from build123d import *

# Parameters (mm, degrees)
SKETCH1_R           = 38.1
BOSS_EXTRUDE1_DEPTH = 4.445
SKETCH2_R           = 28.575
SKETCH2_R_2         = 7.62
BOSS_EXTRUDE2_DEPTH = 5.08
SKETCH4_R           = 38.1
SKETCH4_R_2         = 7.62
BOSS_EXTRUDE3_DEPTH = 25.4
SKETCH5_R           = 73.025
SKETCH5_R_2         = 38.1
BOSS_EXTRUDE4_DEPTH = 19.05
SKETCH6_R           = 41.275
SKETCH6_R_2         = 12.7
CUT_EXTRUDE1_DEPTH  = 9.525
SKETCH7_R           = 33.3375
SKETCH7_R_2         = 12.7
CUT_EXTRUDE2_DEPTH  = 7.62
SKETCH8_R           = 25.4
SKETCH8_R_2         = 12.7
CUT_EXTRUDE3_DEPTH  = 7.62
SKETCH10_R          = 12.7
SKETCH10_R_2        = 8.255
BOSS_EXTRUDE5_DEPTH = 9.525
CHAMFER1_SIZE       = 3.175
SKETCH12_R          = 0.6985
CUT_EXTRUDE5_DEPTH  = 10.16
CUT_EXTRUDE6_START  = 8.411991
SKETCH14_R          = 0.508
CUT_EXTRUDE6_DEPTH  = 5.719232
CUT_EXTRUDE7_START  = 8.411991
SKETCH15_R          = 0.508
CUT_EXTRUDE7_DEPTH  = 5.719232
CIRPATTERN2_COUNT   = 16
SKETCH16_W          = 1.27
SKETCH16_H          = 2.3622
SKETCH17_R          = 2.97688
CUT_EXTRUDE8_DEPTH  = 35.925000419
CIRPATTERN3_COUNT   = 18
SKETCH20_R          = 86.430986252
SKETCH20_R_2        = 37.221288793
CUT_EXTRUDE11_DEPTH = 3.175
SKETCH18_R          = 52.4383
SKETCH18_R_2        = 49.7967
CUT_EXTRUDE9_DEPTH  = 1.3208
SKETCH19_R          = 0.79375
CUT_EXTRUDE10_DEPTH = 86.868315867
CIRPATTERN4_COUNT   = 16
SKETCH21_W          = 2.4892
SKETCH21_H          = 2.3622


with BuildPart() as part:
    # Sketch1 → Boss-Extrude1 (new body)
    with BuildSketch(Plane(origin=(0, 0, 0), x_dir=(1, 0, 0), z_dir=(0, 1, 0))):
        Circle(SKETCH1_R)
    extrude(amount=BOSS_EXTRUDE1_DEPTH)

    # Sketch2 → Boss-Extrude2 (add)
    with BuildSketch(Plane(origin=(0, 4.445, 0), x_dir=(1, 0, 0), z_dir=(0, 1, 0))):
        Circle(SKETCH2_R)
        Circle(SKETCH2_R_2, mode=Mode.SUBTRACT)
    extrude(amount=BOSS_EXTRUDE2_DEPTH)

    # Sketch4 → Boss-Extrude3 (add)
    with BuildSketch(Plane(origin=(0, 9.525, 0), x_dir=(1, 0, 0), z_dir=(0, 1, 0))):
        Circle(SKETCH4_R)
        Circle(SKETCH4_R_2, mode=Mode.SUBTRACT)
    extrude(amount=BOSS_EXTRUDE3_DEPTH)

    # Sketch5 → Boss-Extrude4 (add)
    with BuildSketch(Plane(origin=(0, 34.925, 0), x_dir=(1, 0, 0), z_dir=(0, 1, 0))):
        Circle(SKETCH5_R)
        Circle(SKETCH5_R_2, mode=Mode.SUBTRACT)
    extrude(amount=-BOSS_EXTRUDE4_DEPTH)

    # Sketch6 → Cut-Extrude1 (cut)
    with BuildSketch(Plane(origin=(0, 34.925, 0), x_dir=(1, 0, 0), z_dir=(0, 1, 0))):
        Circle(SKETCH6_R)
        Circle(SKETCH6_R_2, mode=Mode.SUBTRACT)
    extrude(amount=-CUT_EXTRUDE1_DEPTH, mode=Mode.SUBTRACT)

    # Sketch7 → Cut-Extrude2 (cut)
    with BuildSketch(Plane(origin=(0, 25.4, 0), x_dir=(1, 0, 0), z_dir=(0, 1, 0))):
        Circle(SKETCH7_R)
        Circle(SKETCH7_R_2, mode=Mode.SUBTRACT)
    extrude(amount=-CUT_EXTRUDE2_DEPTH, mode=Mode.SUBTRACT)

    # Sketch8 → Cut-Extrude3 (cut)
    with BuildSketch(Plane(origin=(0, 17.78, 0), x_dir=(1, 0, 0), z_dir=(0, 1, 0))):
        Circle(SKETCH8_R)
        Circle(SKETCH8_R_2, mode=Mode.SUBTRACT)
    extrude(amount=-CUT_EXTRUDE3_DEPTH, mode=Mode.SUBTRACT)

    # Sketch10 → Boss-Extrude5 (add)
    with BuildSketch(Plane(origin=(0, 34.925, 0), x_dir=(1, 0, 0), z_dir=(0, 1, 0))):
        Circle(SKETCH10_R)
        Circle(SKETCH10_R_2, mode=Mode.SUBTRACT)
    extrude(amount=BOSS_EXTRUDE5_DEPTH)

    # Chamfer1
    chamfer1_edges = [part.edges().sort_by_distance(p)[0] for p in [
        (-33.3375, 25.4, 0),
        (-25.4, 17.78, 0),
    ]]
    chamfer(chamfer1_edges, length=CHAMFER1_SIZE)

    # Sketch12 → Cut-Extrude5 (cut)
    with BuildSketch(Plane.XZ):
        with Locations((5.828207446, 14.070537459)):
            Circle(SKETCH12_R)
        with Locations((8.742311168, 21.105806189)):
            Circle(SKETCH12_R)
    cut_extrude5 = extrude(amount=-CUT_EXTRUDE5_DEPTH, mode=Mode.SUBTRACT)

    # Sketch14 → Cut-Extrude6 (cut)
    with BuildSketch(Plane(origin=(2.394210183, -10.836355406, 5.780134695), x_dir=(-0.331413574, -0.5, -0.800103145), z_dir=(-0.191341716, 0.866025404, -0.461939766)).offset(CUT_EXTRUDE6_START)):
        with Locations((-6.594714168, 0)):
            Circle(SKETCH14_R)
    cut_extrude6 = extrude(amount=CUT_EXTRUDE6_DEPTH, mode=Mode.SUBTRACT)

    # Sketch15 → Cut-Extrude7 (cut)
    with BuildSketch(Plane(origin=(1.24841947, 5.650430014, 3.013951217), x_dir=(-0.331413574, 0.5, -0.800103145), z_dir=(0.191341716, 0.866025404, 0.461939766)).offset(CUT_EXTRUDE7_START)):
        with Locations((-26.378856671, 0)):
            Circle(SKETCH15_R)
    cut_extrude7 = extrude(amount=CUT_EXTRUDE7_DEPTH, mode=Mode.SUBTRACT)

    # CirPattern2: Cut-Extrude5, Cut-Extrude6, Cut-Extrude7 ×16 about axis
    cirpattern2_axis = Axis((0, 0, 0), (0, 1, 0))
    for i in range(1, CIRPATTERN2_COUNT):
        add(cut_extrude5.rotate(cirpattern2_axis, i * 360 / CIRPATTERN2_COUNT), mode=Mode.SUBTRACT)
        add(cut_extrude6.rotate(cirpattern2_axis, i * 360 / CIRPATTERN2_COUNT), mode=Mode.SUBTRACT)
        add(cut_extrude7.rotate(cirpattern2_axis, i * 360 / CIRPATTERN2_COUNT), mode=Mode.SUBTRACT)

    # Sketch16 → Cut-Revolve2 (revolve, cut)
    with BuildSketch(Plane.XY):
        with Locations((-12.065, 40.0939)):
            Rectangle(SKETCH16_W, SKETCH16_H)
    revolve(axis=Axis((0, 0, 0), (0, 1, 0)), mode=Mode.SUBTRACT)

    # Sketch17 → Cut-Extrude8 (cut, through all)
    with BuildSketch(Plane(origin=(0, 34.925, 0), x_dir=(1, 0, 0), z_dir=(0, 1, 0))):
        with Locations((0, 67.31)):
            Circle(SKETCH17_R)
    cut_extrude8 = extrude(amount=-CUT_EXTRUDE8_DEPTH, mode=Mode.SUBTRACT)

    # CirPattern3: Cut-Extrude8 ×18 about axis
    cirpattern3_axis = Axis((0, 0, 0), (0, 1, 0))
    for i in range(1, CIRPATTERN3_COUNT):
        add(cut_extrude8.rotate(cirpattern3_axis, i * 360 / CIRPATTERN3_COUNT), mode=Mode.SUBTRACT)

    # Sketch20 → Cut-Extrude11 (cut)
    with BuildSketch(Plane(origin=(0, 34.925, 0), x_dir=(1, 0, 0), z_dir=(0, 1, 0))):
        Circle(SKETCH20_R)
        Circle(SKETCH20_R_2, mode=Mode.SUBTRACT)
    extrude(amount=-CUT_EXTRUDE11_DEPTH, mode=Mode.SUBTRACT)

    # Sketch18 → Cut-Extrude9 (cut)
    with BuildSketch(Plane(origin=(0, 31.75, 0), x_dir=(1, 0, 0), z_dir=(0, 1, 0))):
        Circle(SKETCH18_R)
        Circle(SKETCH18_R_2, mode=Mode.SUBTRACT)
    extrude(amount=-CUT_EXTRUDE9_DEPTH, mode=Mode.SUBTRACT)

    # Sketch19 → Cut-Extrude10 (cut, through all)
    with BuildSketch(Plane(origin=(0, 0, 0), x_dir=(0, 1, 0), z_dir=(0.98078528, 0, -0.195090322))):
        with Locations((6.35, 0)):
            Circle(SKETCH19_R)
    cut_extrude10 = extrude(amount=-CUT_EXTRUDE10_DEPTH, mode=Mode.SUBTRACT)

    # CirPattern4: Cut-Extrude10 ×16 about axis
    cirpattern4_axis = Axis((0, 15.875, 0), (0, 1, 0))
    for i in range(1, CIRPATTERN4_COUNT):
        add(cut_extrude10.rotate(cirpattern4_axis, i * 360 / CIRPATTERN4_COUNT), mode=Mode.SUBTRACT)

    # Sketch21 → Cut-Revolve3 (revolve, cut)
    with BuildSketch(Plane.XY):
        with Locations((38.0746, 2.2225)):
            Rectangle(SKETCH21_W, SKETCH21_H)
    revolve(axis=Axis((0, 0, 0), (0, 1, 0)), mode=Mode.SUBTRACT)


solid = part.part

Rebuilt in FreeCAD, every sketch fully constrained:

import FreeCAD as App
import Part
import Sketcher

V = App.Vector
Q = App.Units.Quantity


def edges_at(feature, points):
    """Names of the edges that pass closest to the given points."""
    edges = feature.Shape.Edges
    near = lambda p: min(range(len(edges)), key=lambda i: edges[i].distToShape(Part.Vertex(*p))[0])
    return sorted({f"Edge{near(p) + 1}" for p in points})


def add_polygon(sketch, points):
    """Adds a closed chain of lines whose ends are joined by coincident constraints."""
    first, n = sketch.GeometryCount, len(points)
    for a, b in zip(points, points[1:] + points[:1]):
        sketch.addGeometry(Part.LineSegment(App.Vector(*a, 0), App.Vector(*b, 0)), False)
    for i in range(n):
        sketch.addConstraint(Sketcher.Constraint("Coincident", first + i, 2, first + (i + 1) % n, 1))

doc = App.newDocument("Part")
body = doc.addObject("PartDesign::Body", "Body")

# Sketch on XZ plane
sketch1 = doc.addObject("Sketcher::SketchObject", "Sketch")
body.addObject(sketch1)
sketch1.AttachmentSupport = (doc.XZ_Plane, [""])
sketch1.MapMode = "FlatFace"
sketch1.addGeometry(Part.Circle(V(0, 0, 0), V(0, 0, 1), 38.1), False)
sketch1.addConstraint(Sketcher.Constraint("Coincident", 0, 3, -1, 1))
sketch1.addConstraint(Sketcher.Constraint("Diameter", 0, Q("3 in")))
pad1 = doc.addObject("PartDesign::Pad", "Pad")
body.addObject(pad1)
pad1.Profile = sketch1
pad1.Length = Q("0.175 in")
pad1.Reversed = True

# Sketch on XZ plane
sketch2 = doc.addObject("Sketcher::SketchObject", "Sketch001")
body.addObject(sketch2)
sketch2.AttachmentSupport = (doc.XZ_Plane, [""])
sketch2.MapMode = "FlatFace"
sketch2.AttachmentOffset = App.Placement(V(0, 0, -0.175 * 25.4), App.Rotation())
sketch2.addGeometry(Part.Circle(V(0, 0, 0), V(0, 0, 1), 28.575), False)
sketch2.addGeometry(Part.Circle(V(0, 0, 0), V(0, 0, 1), 7.62), False)
sketch2.addConstraint(Sketcher.Constraint("Coincident", 0, 3, -1, 1))
sketch2.addConstraint(Sketcher.Constraint("Coincident", 1, 3, -1, 1))
sketch2.addConstraint(Sketcher.Constraint("Diameter", 1, Q("0.6 in")))
sketch2.addConstraint(Sketcher.Constraint("Diameter", 0, Q("2.25 in")))
pad2 = doc.addObject("PartDesign::Pad", "Pad001")
body.addObject(pad2)
pad2.Profile = sketch2
pad2.Length = Q("0.2 in")
pad2.Reversed = True

# Sketch on XZ plane
sketch3 = doc.addObject("Sketcher::SketchObject", "Sketch002")
body.addObject(sketch3)
sketch3.AttachmentSupport = (doc.XZ_Plane, [""])
sketch3.MapMode = "FlatFace"
sketch3.AttachmentOffset = App.Placement(V(0, 0, -0.375 * 25.4), App.Rotation())
sketch3.addGeometry(Part.Circle(V(0, 0, 0), V(0, 0, 1), 38.1), False)
sketch3.addGeometry(Part.Circle(V(0, 0, 0), V(0, 0, 1), 7.62), False)
sketch3.addConstraint(Sketcher.Constraint("Coincident", 0, 3, -1, 1))
sketch3.addConstraint(Sketcher.Constraint("Coincident", 1, 3, -1, 1))
sketch3.addConstraint(Sketcher.Constraint("Diameter", 0, Q("3 in")))
sketch3.addConstraint(Sketcher.Constraint("Diameter", 1, Q("0.6 in")))
pad3 = doc.addObject("PartDesign::Pad", "Pad002")
body.addObject(pad3)
pad3.Profile = sketch3
pad3.Length = Q("1 in")
pad3.Reversed = True

# Sketch on XZ plane
sketch4 = doc.addObject("Sketcher::SketchObject", "Sketch003")
body.addObject(sketch4)
sketch4.AttachmentSupport = (doc.XZ_Plane, [""])
sketch4.MapMode = "FlatFace"
sketch4.AttachmentOffset = App.Placement(V(0, 0, -1.375 * 25.4), App.Rotation())
sketch4.addGeometry(Part.Circle(V(0, 0, 0), V(0, 0, 1), 73.025), False)
sketch4.addGeometry(Part.Circle(V(0, 0, 0), V(0, 0, 1), 38.1), False)
sketch4.addConstraint(Sketcher.Constraint("Coincident", 0, 3, -1, 1))
sketch4.addConstraint(Sketcher.Constraint("Coincident", 1, 3, -1, 1))
sketch4.addConstraint(Sketcher.Constraint("Diameter", 1, Q("3 in")))
sketch4.addConstraint(Sketcher.Constraint("Diameter", 0, Q("5.75 in")))
pad4 = doc.addObject("PartDesign::Pad", "Pad003")
body.addObject(pad4)
pad4.Profile = sketch4
pad4.Length = Q("0.75 in")

# Sketch on XZ plane
sketch5 = doc.addObject("Sketcher::SketchObject", "Sketch004")
body.addObject(sketch5)
sketch5.AttachmentSupport = (doc.XZ_Plane, [""])
sketch5.MapMode = "FlatFace"
sketch5.AttachmentOffset = App.Placement(V(0, 0, -1.375 * 25.4), App.Rotation())
sketch5.addGeometry(Part.Circle(V(0, 0, 0), V(0, 0, 1), 41.275), False)
sketch5.addGeometry(Part.Circle(V(0, 0, 0), V(0, 0, 1), 12.7), False)
sketch5.addConstraint(Sketcher.Constraint("Coincident", 0, 3, -1, 1))
sketch5.addConstraint(Sketcher.Constraint("Coincident", 1, 3, -1, 1))
sketch5.addConstraint(Sketcher.Constraint("Diameter", 1, Q("1 in")))
sketch5.addConstraint(Sketcher.Constraint("Diameter", 0, Q("3.25 in")))
pocket1 = doc.addObject("PartDesign::Pocket", "Pocket")
body.addObject(pocket1)
pocket1.Profile = sketch5
pocket1.Length = Q("0.375 in")
pocket1.Reversed = True

# Sketch on XZ plane
sketch6 = doc.addObject("Sketcher::SketchObject", "Sketch005")
body.addObject(sketch6)
sketch6.AttachmentSupport = (doc.XZ_Plane, [""])
sketch6.MapMode = "FlatFace"
sketch6.AttachmentOffset = App.Placement(V(0, 0, -1 * 25.4), App.Rotation())
sketch6.addGeometry(Part.Circle(V(0, 0, 0), V(0, 0, 1), 33.3375), False)
sketch6.addGeometry(Part.Circle(V(0, 0, 0), V(0, 0, 1), 12.7), False)
sketch6.addConstraint(Sketcher.Constraint("Coincident", 0, 3, -1, 1))
sketch6.addConstraint(Sketcher.Constraint("Coincident", 1, 3, -1, 1))
sketch6.addConstraint(Sketcher.Constraint("Diameter", 1, Q("1 in")))
sketch6.addConstraint(Sketcher.Constraint("Diameter", 0, Q("2.625 in")))
pocket2 = doc.addObject("PartDesign::Pocket", "Pocket001")
body.addObject(pocket2)
pocket2.Profile = sketch6
pocket2.Length = Q("0.3 in")
pocket2.Reversed = True

# Sketch on XZ plane
sketch7 = doc.addObject("Sketcher::SketchObject", "Sketch006")
body.addObject(sketch7)
sketch7.AttachmentSupport = (doc.XZ_Plane, [""])
sketch7.MapMode = "FlatFace"
sketch7.AttachmentOffset = App.Placement(V(0, 0, -0.7 * 25.4), App.Rotation())
sketch7.addGeometry(Part.Circle(V(0, 0, 0), V(0, 0, 1), 25.4), False)
sketch7.addGeometry(Part.Circle(V(0, 0, 0), V(0, 0, 1), 12.7), False)
sketch7.addConstraint(Sketcher.Constraint("Coincident", 0, 3, -1, 1))
sketch7.addConstraint(Sketcher.Constraint("Coincident", 1, 3, -1, 1))
sketch7.addConstraint(Sketcher.Constraint("Diameter", 0, Q("2 in")))
sketch7.addConstraint(Sketcher.Constraint("Diameter", 1, Q("1 in")))
pocket3 = doc.addObject("PartDesign::Pocket", "Pocket002")
body.addObject(pocket3)
pocket3.Profile = sketch7
pocket3.Length = Q("0.3 in")
pocket3.Reversed = True

# Sketch on XZ plane
sketch8 = doc.addObject("Sketcher::SketchObject", "Sketch007")
body.addObject(sketch8)
sketch8.AttachmentSupport = (doc.XZ_Plane, [""])
sketch8.MapMode = "FlatFace"
sketch8.AttachmentOffset = App.Placement(V(0, 0, -1.375 * 25.4), App.Rotation())
sketch8.addGeometry(Part.Circle(V(0, 0, 0), V(0, 0, 1), 12.7), False)
sketch8.addGeometry(Part.Circle(V(0, 0, 0), V(0, 0, 1), 8.255), False)
sketch8.addConstraint(Sketcher.Constraint("Coincident", 0, 3, -1, 1))
sketch8.addConstraint(Sketcher.Constraint("Coincident", 1, 3, -1, 1))
sketch8.addConstraint(Sketcher.Constraint("Diameter", 0, Q("1 in")))
sketch8.addConstraint(Sketcher.Constraint("Diameter", 1, Q("0.65 in")))
pad5 = doc.addObject("PartDesign::Pad", "Pad004")
body.addObject(pad5)
pad5.Profile = sketch8
pad5.Length = Q("0.375 in")
pad5.Reversed = True
doc.recompute()

chamfer = doc.addObject("PartDesign::Chamfer", "Chamfer")
body.addObject(chamfer)
chamfer.Base = (pad5, edges_at(pad5, [(-33.337, 25.4, 0), (-25.4, 17.78, 0)]))
chamfer.Size = Q("0.125 in")

# Sketch on XZ plane
sketch9 = doc.addObject("Sketcher::SketchObject", "Sketch008")
body.addObject(sketch9)
sketch9.AttachmentSupport = (doc.XZ_Plane, [""])
sketch9.MapMode = "FlatFace"
sketch9.addGeometry(Part.Circle(V(5.828207, 14.070537, 0), V(0, 0, 1), 0.6985), False)
sketch9.addGeometry(Part.Circle(V(8.742311, 21.105806, 0), V(0, 0, 1), 0.6985), False)
sketch9.addConstraint(Sketcher.Constraint("Equal", 0, 1))
sketch9.addConstraint(Sketcher.Constraint("Diameter", 0, Q("0.055 in")))
sketch9.addConstraint(Sketcher.Constraint("DistanceX", -1, 1, 1, 3, Q("8.742311 mm")))
sketch9.addConstraint(Sketcher.Constraint("DistanceY", 0, 3, 1, 3, Q("7.035269 mm")))
sketch9.addConstraint(Sketcher.Constraint("DistanceX", -1, 1, 0, 3, Q("5.828207 mm")))
sketch9.addConstraint(Sketcher.Constraint("DistanceY", -1, 1, 0, 3, Q("14.070537 mm")))
pocket4 = doc.addObject("PartDesign::Pocket", "Pocket003")
body.addObject(pocket4)
pocket4.Profile = sketch9
pocket4.Length = Q("0.4 in")

# Sketch on an angled plane
sketch10 = doc.addObject("Sketcher::SketchObject", "Sketch009")
body.addObject(sketch10)
sketch10.Placement = App.Placement(V(0.784645, -3.551358, 1.894302), App.Rotation(V(-0.331413574, -0.5, -0.800103145), V(-0.923879532, 0, 0.382683432), V(-0.191341716, 0.866025404, -0.461939766), "ZXY"))
sketch10.addGeometry(Part.Circle(V(-6.594714, 0, 0), V(0, 0, 1), 0.508), False)
sketch10.addConstraint(Sketcher.Constraint("PointOnObject", 0, 3, -1))
sketch10.addConstraint(Sketcher.Constraint("Diameter", 0, Q("0.04 in")))
sketch10.addConstraint(Sketcher.Constraint("DistanceX", 0, 3, -1, 1, Q("6.594714 mm")))
pocket5 = doc.addObject("PartDesign::Pocket", "Pocket004")
body.addObject(pocket5)
pocket5.Profile = sketch10
pocket5.Length = 5.719232
pocket5.Reversed = True

# Sketch on an angled plane
sketch11 = doc.addObject("Sketcher::SketchObject", "Sketch010")
body.addObject(sketch11)
sketch11.Placement = App.Placement(V(2.857984, 12.935428, 6.899784), App.Rotation(V(-0.331413574, 0.5, -0.800103145), V(-0.923879532, 0, 0.382683432), V(0.191341716, 0.866025404, 0.461939766), "ZXY"))
sketch11.addGeometry(Part.Circle(V(-26.378857, 0, 0), V(0, 0, 1), 0.508), False)
sketch11.addConstraint(Sketcher.Constraint("PointOnObject", 0, 3, -1))
sketch11.addConstraint(Sketcher.Constraint("Diameter", 0, Q("0.04 in")))
sketch11.addConstraint(Sketcher.Constraint("DistanceX", 0, 3, -1, 1, Q("26.378857 mm")))
pocket6 = doc.addObject("PartDesign::Pocket", "Pocket005")
body.addObject(pocket6)
pocket6.Profile = sketch11
pocket6.Length = 5.719232
pocket6.Reversed = True
doc.recompute()

polarpattern = doc.addObject("PartDesign::PolarPattern", "PolarPattern")
body.addObject(polarpattern)
polarpattern.Originals = [pocket4, pocket5, pocket6]
polarpattern.Axis = (doc.Y_Axis, [""])
polarpattern.Angle = 360
polarpattern.Occurrences = 16
body.Tip = polarpattern

# Sketch on XY plane
sketch12 = doc.addObject("Sketcher::SketchObject", "Sketch011")
body.addObject(sketch12)
sketch12.AttachmentSupport = (doc.XY_Plane, [""])
sketch12.MapMode = "FlatFace"
add_polygon(sketch12, [(-12.7, 41.275), (-12.7, 38.9128), (-11.43, 38.9128), (-11.43, 41.275)])  # lines 0-3
sketch12.addConstraint(Sketcher.Constraint("Vertical", 0))
sketch12.addConstraint(Sketcher.Constraint("Horizontal", 1))
sketch12.addConstraint(Sketcher.Constraint("Vertical", 2))
sketch12.addConstraint(Sketcher.Constraint("Horizontal", 3))
sketch12.addConstraint(Sketcher.Constraint("DistanceX", 1, 1, 1, 2, Q("0.05 in")))
sketch12.addConstraint(Sketcher.Constraint("DistanceX", 0, 2, -1, 1, Q("0.5 in")))
sketch12.addConstraint(Sketcher.Constraint("DistanceY", 0, 2, 0, 1, Q("0.093 in")))
sketch12.addConstraint(Sketcher.Constraint("DistanceY", -1, 1, 0, 2, Q("1.532 in")))
groove = doc.addObject("PartDesign::Groove", "Groove")
body.addObject(groove)
groove.Profile = sketch12
groove.ReferenceAxis = (sketch12, ["V_Axis"])
groove.Angle = 360

# Sketch on XZ plane
sketch13 = doc.addObject("Sketcher::SketchObject", "Sketch012")
body.addObject(sketch13)
sketch13.AttachmentSupport = (doc.XZ_Plane, [""])
sketch13.MapMode = "FlatFace"
sketch13.AttachmentOffset = App.Placement(V(0, 0, -1.375 * 25.4), App.Rotation())
sketch13.addGeometry(Part.Circle(V(0, -67.31, 0), V(0, 0, 1), 2.97688), False)
sketch13.addConstraint(Sketcher.Constraint("PointOnObject", 0, 3, -2))
sketch13.addConstraint(Sketcher.Constraint("Diameter", 0, Q("0.2344 in")))
sketch13.addConstraint(Sketcher.Constraint("DistanceY", 0, 3, -1, 1, Q("2.65 in")))
pocket7 = doc.addObject("PartDesign::Pocket", "Pocket006")
body.addObject(pocket7)
pocket7.Profile = sketch13
pocket7.Type = "ThroughAll"
pocket7.Reversed = True
doc.recompute()

polarpattern2 = doc.addObject("PartDesign::PolarPattern", "PolarPattern001")
body.addObject(polarpattern2)
polarpattern2.Originals = [pocket7]
polarpattern2.Axis = (doc.Y_Axis, [""])
polarpattern2.Angle = 360
polarpattern2.Occurrences = 18
body.Tip = polarpattern2

# Sketch on XZ plane
sketch14 = doc.addObject("Sketcher::SketchObject", "Sketch013")
body.addObject(sketch14)
sketch14.AttachmentSupport = (doc.XZ_Plane, [""])
sketch14.MapMode = "FlatFace"
sketch14.AttachmentOffset = App.Placement(V(0, 0, -1.375 * 25.4), App.Rotation())
sketch14.addGeometry(Part.Circle(V(0, 0, 0), V(0, 0, 1), 86.430986), False)
sketch14.addGeometry(Part.Circle(V(0, 0, 0), V(0, 0, 1), 37.221289), False)
sketch14.addConstraint(Sketcher.Constraint("Coincident", 0, 3, -1, 1))
sketch14.addConstraint(Sketcher.Constraint("Coincident", 1, 3, -1, 1))
sketch14.addConstraint(Sketcher.Constraint("Diameter", 0, Q("172.861973 mm")))
sketch14.addConstraint(Sketcher.Constraint("Diameter", 1, Q("74.442578 mm")))
pocket8 = doc.addObject("PartDesign::Pocket", "Pocket007")
body.addObject(pocket8)
pocket8.Profile = sketch14
pocket8.Length = Q("0.125 in")
pocket8.Reversed = True

# Sketch on XZ plane
sketch15 = doc.addObject("Sketcher::SketchObject", "Sketch014")
body.addObject(sketch15)
sketch15.AttachmentSupport = (doc.XZ_Plane, [""])
sketch15.MapMode = "FlatFace"
sketch15.AttachmentOffset = App.Placement(V(0, 0, -1.25 * 25.4), App.Rotation())
sketch15.addGeometry(Part.Circle(V(0, 0, 0), V(0, 0, 1), 52.4383), False)
sketch15.addGeometry(Part.Circle(V(0, 0, 0), V(0, 0, 1), 49.7967), False)
sketch15.addConstraint(Sketcher.Constraint("Coincident", 0, 3, -1, 1))
sketch15.addConstraint(Sketcher.Constraint("Coincident", 1, 3, -1, 1))
sketch15.addConstraint(Sketcher.Constraint("Diameter", 0, Q("4.129 in")))
sketch15.addConstraint(Sketcher.Constraint("Diameter", 1, Q("3.921 in")))
pocket9 = doc.addObject("PartDesign::Pocket", "Pocket008")
body.addObject(pocket9)
pocket9.Profile = sketch15
pocket9.Length = Q("0.052 in")
pocket9.Reversed = True

# Sketch on an angled plane
sketch16 = doc.addObject("Sketcher::SketchObject", "Sketch015")
body.addObject(sketch16)
sketch16.Placement = App.Placement(V(0, 0, 0), App.Rotation(V(0, 1, 0), V(0.195090322, 0, 0.98078528), V(0.98078528, 0, -0.195090322), "ZXY"))
sketch16.addGeometry(Part.Circle(V(6.35, 0, 0), V(0, 0, 1), 0.79375), False)
sketch16.addConstraint(Sketcher.Constraint("PointOnObject", 0, 3, -1))
sketch16.addConstraint(Sketcher.Constraint("Diameter", 0, Q("0.0625 in")))
sketch16.addConstraint(Sketcher.Constraint("DistanceX", -1, 1, 0, 3, Q("0.25 in")))
pocket10 = doc.addObject("PartDesign::Pocket", "Pocket009")
body.addObject(pocket10)
pocket10.Profile = sketch16
pocket10.Type = "ThroughAll"
doc.recompute()

polarpattern3 = doc.addObject("PartDesign::PolarPattern", "PolarPattern002")
body.addObject(polarpattern3)
polarpattern3.Originals = [pocket10]
polarpattern3.Axis = (doc.Y_Axis, [""])
polarpattern3.Angle = 360
polarpattern3.Occurrences = 16
body.Tip = polarpattern3

# Sketch on XY plane
sketch17 = doc.addObject("Sketcher::SketchObject", "Sketch016")
body.addObject(sketch17)
sketch17.AttachmentSupport = (doc.XY_Plane, [""])
sketch17.MapMode = "FlatFace"
add_polygon(sketch17, [(36.83, 3.4036), (36.83, 1.0414), (39.3192, 1.0414), (39.3192, 3.4036)])  # lines 0-3
sketch17.addConstraint(Sketcher.Constraint("Vertical", 0))
sketch17.addConstraint(Sketcher.Constraint("Horizontal", 1))
sketch17.addConstraint(Sketcher.Constraint("Vertical", 2))
sketch17.addConstraint(Sketcher.Constraint("Horizontal", 3))
sketch17.addConstraint(Sketcher.Constraint("DistanceX", 1, 1, 1, 2, Q("0.098 in")))
sketch17.addConstraint(Sketcher.Constraint("DistanceY", 0, 2, 0, 1, Q("0.093 in")))
sketch17.addConstraint(Sketcher.Constraint("DistanceX", -1, 1, 0, 2, Q("1.45 in")))
sketch17.addConstraint(Sketcher.Constraint("DistanceY", -1, 1, 0, 2, Q("0.041 in")))
groove2 = doc.addObject("PartDesign::Groove", "Groove001")
body.addObject(groove2)
groove2.Profile = sketch17
groove2.ReferenceAxis = (sketch17, ["V_Axis"])
groove2.Angle = 360

doc.recompute()
